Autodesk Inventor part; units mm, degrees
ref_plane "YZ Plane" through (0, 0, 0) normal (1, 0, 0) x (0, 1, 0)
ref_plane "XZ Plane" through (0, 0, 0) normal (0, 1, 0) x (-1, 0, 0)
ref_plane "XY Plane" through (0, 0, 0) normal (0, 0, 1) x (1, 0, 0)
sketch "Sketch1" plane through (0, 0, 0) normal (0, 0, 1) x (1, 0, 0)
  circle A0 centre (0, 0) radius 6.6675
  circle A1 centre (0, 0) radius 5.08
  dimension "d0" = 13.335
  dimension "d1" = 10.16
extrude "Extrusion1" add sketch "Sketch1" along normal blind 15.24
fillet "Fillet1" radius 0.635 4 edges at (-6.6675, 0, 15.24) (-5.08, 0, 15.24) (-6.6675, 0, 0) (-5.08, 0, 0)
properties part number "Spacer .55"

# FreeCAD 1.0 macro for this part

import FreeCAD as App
import Part
import Sketcher
from FreeCAD import Vector
Q = App.Units.Quantity


def edges_at(feature, points):
    """Names of the edges that pass closest to the given points."""
    edges = feature.Shape.Edges
    near = lambda p: min(range(len(edges)), key=lambda i: edges[i].distToShape(Part.Vertex(*p))[0])
    return sorted({f"Edge{near(p) + 1}" for p in points})

doc = App.newDocument("Part")
body = doc.addObject("PartDesign::Body", "Body")

sketch1 = doc.addObject("Sketcher::SketchObject", "Sketch")
body.addObject(sketch1)
sketch1.AttachmentSupport = (doc.XY_Plane, [""])
sketch1.MapMode = "FlatFace"
sketch1.addGeometry(Part.Circle(Vector(0, 0, 0), Vector(0, 0, 1), 7), False)
sketch1.addGeometry(Part.Circle(Vector(0, 0, 0), Vector(0, 0, 1), 5), False)
sketch1.addConstraint(Sketcher.Constraint("Coincident", 0, 3, -1, 1))
sketch1.addConstraint(Sketcher.Constraint("Coincident", 1, 3, -1, 1))
sketch1.addConstraint(Sketcher.Constraint("Diameter", 1, Q("0.4 in")))
sketch1.addConstraint(Sketcher.Constraint("Diameter", 0, Q("0.525 in")))
pad1 = doc.addObject("PartDesign::Pad", "Pad")
body.addObject(pad1)
pad1.Profile = sketch1
pad1.Length = Q("0.6 in")
doc.recompute()

fillet = doc.addObject("PartDesign::Fillet", "Fillet")
body.addObject(fillet)
fillet.Base = (pad1, edges_at(pad1, [
    (-6.668, 0, 15.24),
    (-5.08, 0, 15.24),
    (-6.668, 0, 0),
    (-5.08, 0, 0),
]))
fillet.Radius = Q("0.025 in")

doc.recompute()
